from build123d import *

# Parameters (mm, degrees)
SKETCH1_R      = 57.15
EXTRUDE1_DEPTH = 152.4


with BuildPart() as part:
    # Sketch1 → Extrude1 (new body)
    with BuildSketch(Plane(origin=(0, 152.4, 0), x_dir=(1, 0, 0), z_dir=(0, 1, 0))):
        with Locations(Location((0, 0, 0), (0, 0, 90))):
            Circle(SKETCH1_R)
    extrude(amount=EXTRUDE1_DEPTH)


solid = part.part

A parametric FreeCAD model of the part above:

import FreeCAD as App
import Part
import Sketcher
from FreeCAD import Vector
Q = App.Units.Quantity

doc = App.newDocument("Part")
params = doc.addObject("Spreadsheet::Sheet", "Params")
for row, (alias, value) in enumerate([
    ("sketch1_diameter", "4.5 in"),
    ("pad1_length", "6 in"),
], start=1):
    params.set(f"A{row}", alias)
    params.set(f"B{row}", "=" + value)
    params.setAlias(f"B{row}", alias)

body = doc.addObject("PartDesign::Body", "Body")

# Sketch on XZ plane
sketch1 = body.newObject("Sketcher::SketchObject", "Sketch")
sketch1.AttachmentSupport = (doc.getObject("XZ_Plane"), [""])
sketch1.MapMode = "FlatFace"
sketch1.AttachmentOffset = App.Placement(Vector(0, 0, -6 * 25.4), App.Rotation())
sketch1.addGeometry(Part.Circle(Vector(0, 0, 0), Vector(0, 0, 1), 57.15), False)
sketch1.addConstraint(Sketcher.Constraint("Coincident", 0, 3, -1, 1))
sketch1.addConstraint(Sketcher.Constraint("Diameter", 0, Q("4.5 in")))
sketch1.setExpression("Constraints[1]", "Params.sketch1_diameter")
pad1 = body.newObject("PartDesign::Pad", "Pad")
pad1.Profile = sketch1
pad1.setExpression("Length", "Params.pad1_length")
pad1.Reversed = True

doc.recompute()
